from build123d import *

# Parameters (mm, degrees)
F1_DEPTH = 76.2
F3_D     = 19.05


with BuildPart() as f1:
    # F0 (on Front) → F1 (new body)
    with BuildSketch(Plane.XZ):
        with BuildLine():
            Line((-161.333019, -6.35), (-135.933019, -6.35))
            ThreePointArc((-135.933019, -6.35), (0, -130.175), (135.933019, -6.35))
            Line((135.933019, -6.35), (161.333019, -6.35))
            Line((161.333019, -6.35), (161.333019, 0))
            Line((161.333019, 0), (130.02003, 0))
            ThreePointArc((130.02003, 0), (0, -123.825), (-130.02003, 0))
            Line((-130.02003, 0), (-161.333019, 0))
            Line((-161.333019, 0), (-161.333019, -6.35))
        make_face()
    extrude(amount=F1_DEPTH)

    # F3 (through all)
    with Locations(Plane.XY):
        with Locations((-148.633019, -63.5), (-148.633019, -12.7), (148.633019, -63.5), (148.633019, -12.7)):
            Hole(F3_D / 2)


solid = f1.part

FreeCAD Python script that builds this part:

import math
import FreeCAD as App
import Part
import Sketcher

V = App.Vector
Q = App.Units.Quantity

doc = App.newDocument("Part")
body = doc.addObject("PartDesign::Body", "Body")

sketch1 = body.newObject("Sketcher::SketchObject", "Sketch")
sketch1.AttachmentSupport = (doc.getObject("XZ_Plane"), [""])
sketch1.MapMode = "FlatFace"
sketch1.addGeometry(Part.LineSegment(V(-161, -6, 0), V(-136, -6, 0)), False)
sketch1.addGeometry(Part.ArcOfCircle(Part.Circle(V(0, 6, 0), V(0, 0, 1), 137), math.radians(-175), math.radians(-5)), False)
sketch1.addGeometry(Part.LineSegment(V(136, -6, 0), V(161, -6, 0)), False)
sketch1.addGeometry(Part.LineSegment(V(161, -6, 0), V(161, 0, 0)), False)
sketch1.addGeometry(Part.LineSegment(V(161, 0, 0), V(130, 0, 0)), False)
sketch1.addGeometry(Part.ArcOfCircle(Part.Circle(V(0, 6, 0), V(0, 0, 1), 130), math.radians(-177), math.radians(-3)), False)
sketch1.addGeometry(Part.LineSegment(V(-130, 0, 0), V(-161, 0, 0)), False)
sketch1.addGeometry(Part.LineSegment(V(-161, 0, 0), V(-161, -6, 0)), False)
sketch1.addConstraint(Sketcher.Constraint("Coincident", 0, 2, 1, 1))
sketch1.addConstraint(Sketcher.Constraint("Coincident", 1, 2, 2, 1))
sketch1.addConstraint(Sketcher.Constraint("Coincident", 2, 2, 3, 1))
sketch1.addConstraint(Sketcher.Constraint("Coincident", 3, 2, 4, 1))
sketch1.addConstraint(Sketcher.Constraint("Coincident", 4, 2, 5, 2))
sketch1.addConstraint(Sketcher.Constraint("Coincident", 5, 1, 6, 1))
sketch1.addConstraint(Sketcher.Constraint("Coincident", 6, 2, 7, 1))
sketch1.addConstraint(Sketcher.Constraint("Coincident", 7, 2, 0, 1))
sketch1.addConstraint(Sketcher.Constraint("Horizontal", 0))
sketch1.addConstraint(Sketcher.Constraint("Horizontal", 2))
sketch1.addConstraint(Sketcher.Constraint("Vertical", 3))
sketch1.addConstraint(Sketcher.Constraint("Horizontal", 4))
sketch1.addConstraint(Sketcher.Constraint("Horizontal", 6))
sketch1.addConstraint(Sketcher.Constraint("Vertical", 7))
sketch1.addConstraint(Sketcher.Constraint("Coincident", 5, 3, 1, 3))
sketch1.addConstraint(Sketcher.Constraint("Symmetric", 4, 2, 5, 1, -1, 1))
sketch1.addConstraint(Sketcher.Constraint("Symmetric", 0, 2, 1, 2, -2))
sketch1.addConstraint(Sketcher.Constraint("Equal", 0, 2))
sketch1.addConstraint(Sketcher.Constraint("DistanceX", 0, 1, 0, 2, Q("1 in")))
sketch1.addConstraint(Sketcher.Constraint("Radius", 1, Q("5.375 in")))
sketch1.addConstraint(Sketcher.Constraint("Radius", 5, Q("5.125 in")))
sketch1.addConstraint(Sketcher.Constraint("DistanceY", 3, 1, 3, 2, Q("0.25 in")))
sketch1.addConstraint(Sketcher.Constraint("DistanceY", 0, 2, 1, 3, Q("0.5 in")))
pad1 = body.newObject("PartDesign::Pad", "Pad")
pad1.Profile = sketch1
pad1.Length = Q("3 in")

sketch2 = body.newObject("Sketcher::SketchObject", "Sketch001")
sketch2.AttachmentSupport = (doc.getObject("XY_Plane"), [""])
sketch2.MapMode = "FlatFace"
sketch2.addGeometry(Part.Circle(V(-149, -64, 0), V(0, 0, 1), 10), False)
sketch2.addGeometry(Part.Circle(V(-149, -13, 0), V(0, 0, 1), 10), False)
sketch2.addGeometry(Part.Circle(V(149, -64, 0), V(0, 0, 1), 10), False)
sketch2.addGeometry(Part.Circle(V(149, -13, 0), V(0, 0, 1), 10), False)
sketch2.addConstraint(Sketcher.Constraint("Equal", 0, 1))
sketch2.addConstraint(Sketcher.Constraint("Equal", 1, 2))
sketch2.addConstraint(Sketcher.Constraint("Equal", 2, 3))
sketch2.addConstraint(Sketcher.Constraint("Symmetric", 0, 3, 2, 3, -2))
sketch2.addConstraint(Sketcher.Constraint("Symmetric", 1, 3, 3, 3, -2))
sketch2.addConstraint(Sketcher.Constraint("Vertical", 0, 3, 1, 3))
sketch2.addConstraint(Sketcher.Constraint("Diameter", 0, Q("0.75 in")))
sketch2.addConstraint(Sketcher.Constraint("DistanceY", 0, 3, 1, 3, Q("2 in")))
sketch2.addConstraint(Sketcher.Constraint("DistanceY", 0, 3, -1, 1, Q("2.5 in")))
sketch2.addConstraint(Sketcher.Constraint("DistanceX", 0, 3, -1, 1, 148.633019))
doc.recompute()
hole = body.newObject("PartDesign::Hole", "Hole")
hole.Profile = sketch2
hole.ThreadType = "None"
hole.Diameter = Q("0.75 in")
hole.DepthType = "ThroughAll"

doc.recompute()
